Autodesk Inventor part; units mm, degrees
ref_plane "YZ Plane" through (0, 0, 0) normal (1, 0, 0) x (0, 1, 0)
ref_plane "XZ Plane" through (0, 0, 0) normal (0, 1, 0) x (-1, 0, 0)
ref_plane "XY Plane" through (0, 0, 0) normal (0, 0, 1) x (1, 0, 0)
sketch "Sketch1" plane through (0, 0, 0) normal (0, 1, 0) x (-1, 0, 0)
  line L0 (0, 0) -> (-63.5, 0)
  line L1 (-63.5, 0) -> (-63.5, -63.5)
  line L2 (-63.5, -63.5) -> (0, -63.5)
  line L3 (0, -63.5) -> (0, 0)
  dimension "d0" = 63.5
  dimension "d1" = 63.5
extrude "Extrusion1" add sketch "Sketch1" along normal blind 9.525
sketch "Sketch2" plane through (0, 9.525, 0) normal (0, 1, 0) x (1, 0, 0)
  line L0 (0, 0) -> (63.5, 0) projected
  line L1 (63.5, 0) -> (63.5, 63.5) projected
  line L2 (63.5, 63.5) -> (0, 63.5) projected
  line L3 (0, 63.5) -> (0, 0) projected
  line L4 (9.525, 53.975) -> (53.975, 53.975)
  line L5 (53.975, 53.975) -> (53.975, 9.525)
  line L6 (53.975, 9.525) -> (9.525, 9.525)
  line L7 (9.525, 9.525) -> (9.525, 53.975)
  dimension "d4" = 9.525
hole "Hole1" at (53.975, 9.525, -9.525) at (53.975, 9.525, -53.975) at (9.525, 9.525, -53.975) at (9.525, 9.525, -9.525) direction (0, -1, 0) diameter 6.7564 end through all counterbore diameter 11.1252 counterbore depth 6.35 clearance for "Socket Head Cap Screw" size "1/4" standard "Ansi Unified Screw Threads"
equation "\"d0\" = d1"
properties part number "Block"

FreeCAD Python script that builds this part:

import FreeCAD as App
import Part
import Sketcher
Q = App.Units.Quantity


def add_polygon(sketch, points):
    """Adds a closed chain of lines whose ends are joined by coincident constraints."""
    first, n = sketch.GeometryCount, len(points)
    for a, b in zip(points, points[1:] + points[:1]):
        sketch.addGeometry(Part.LineSegment(App.Vector(*a, 0), App.Vector(*b, 0)), False)
    for i in range(n):
        sketch.addConstraint(Sketcher.Constraint("Coincident", first + i, 2, first + (i + 1) % n, 1))

doc = App.newDocument("Part")
body = doc.addObject("PartDesign::Body", "Body")

sketch1 = body.newObject("Sketcher::SketchObject", "Sketch")
sketch1.AttachmentSupport = (doc.getObject("XZ_Plane"), [""])
sketch1.MapMode = "FlatFace"
add_polygon(sketch1, [(0, -64), (0, 0), (64, 0), (64, -64)])
sketch1.addConstraint([
    Sketcher.Constraint("Vertical", 0),
    Sketcher.Constraint("Horizontal", 1),
    Sketcher.Constraint("Vertical", 2),
    Sketcher.Constraint("Horizontal", 3),
    Sketcher.Constraint("Coincident", 0, 2, -1, 1),
    Sketcher.Constraint("Equal", 3, 0),
    Sketcher.Constraint("DistanceX", 1, 1, 1, 2, Q("2.5 in")),
])
pad1 = body.newObject("PartDesign::Pad", "Pad")
pad1.Profile = sketch1
pad1.Length = Q("0.375 in")
pad1.Reversed = True

sketch2 = body.newObject("Sketcher::SketchObject", "Sketch001")
sketch2.AttachmentSupport = (doc.getObject("XZ_Plane"), [""])
sketch2.MapMode = "FlatFace"
sketch2.AttachmentOffset = App.Placement(App.Vector(0, 0, -0.375 * 25.4), App.Rotation())
sketch2.addGeometry([
    Part.Circle(App.Vector(54, -9.5, 0), App.Vector(0, 0, 1), 3.4),
    Part.Circle(App.Vector(54, -54, 0), App.Vector(0, 0, 1), 3.4),
    Part.Circle(App.Vector(9.5, -54, 0), App.Vector(0, 0, 1), 3.4),
    Part.Circle(App.Vector(9.5, -9.5, 0), App.Vector(0, 0, 1), 3.4),
], False)
sketch2.addConstraint([
    Sketcher.Constraint("Equal", 0, 1),
    Sketcher.Constraint("Equal", 1, 2),
    Sketcher.Constraint("Equal", 2, 3),
    Sketcher.Constraint("Horizontal", 1, 3, 2, 3),
    Sketcher.Constraint("Horizontal", 0, 3, 3, 3),
    Sketcher.Constraint("Vertical", 0, 3, 1, 3),
    Sketcher.Constraint("Vertical", 2, 3, 3, 3),
    Sketcher.Constraint("Diameter", 0, Q("0.266 in")),
    Sketcher.Constraint("DistanceY", 1, 3, 0, 3, Q("1.75 in")),
    Sketcher.Constraint("DistanceX", 2, 3, 1, 3, Q("1.75 in")),
    Sketcher.Constraint("DistanceX", -1, 1, 0, 3, Q("2.125 in")),
    Sketcher.Constraint("DistanceY", 0, 3, -1, 1, Q("0.375 in")),
])
doc.recompute()
hole = body.newObject("PartDesign::Hole", "Hole")
hole.Profile = sketch2
hole.ThreadType = "None"
hole.Diameter = Q("0.266 in")
hole.DepthType = "ThroughAll"
hole.HoleCutType = "Counterbore"
hole.HoleCutDiameter = Q("0.438 in")
hole.HoleCutDepth = Q("0.25 in")
hole.Reversed = True

doc.recompute()
